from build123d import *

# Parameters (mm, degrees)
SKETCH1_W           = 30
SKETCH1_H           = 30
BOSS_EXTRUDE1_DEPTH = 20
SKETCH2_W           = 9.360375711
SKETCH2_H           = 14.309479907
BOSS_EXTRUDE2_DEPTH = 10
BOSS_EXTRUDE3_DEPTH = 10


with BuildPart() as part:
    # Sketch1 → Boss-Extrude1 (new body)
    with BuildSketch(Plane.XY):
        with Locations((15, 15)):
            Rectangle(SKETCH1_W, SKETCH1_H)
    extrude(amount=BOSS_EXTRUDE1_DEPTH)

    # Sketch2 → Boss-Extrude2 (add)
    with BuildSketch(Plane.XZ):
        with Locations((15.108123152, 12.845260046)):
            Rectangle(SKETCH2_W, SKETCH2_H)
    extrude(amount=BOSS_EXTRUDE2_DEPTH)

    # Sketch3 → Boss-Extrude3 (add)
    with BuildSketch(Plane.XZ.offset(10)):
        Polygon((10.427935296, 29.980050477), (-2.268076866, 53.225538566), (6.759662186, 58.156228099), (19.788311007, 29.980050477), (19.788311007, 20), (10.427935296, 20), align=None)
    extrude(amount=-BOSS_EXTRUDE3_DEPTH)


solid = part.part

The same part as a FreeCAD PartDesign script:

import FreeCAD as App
import Part
import Sketcher

V = App.Vector

doc = App.newDocument("Part")
params = doc.addObject("Spreadsheet::Sheet", "Params")
for row, (alias, value) in enumerate([
    ("sketch1_width", "30 mm"),
    ("pad1_length", "20 mm"),
    ("pad2_length", "10 mm"),
    ("pad3_length", "10 mm"),
], start=1):
    params.set(f"A{row}", alias)
    params.set(f"B{row}", "=" + value)
    params.setAlias(f"B{row}", alias)

body = doc.addObject("PartDesign::Body", "Body")

# Sketch on XY plane
sketch1 = body.newObject("Sketcher::SketchObject", "Sketch")
sketch1.AttachmentSupport = (doc.getObject("XY_Plane"), [""])
sketch1.MapMode = "FlatFace"
sketch1.addGeometry([
    Part.LineSegment(V(0, 30, 0), V(0, 0, 0)),
    Part.LineSegment(V(0, 0, 0), V(30, 0, 0)),
    Part.LineSegment(V(30, 0, 0), V(30, 30, 0)),
    Part.LineSegment(V(30, 30, 0), V(0, 30, 0)),
], False)
sketch1.addConstraint([
    Sketcher.Constraint("Coincident", 0, 2, 1, 1),
    Sketcher.Constraint("Coincident", 1, 2, 2, 1),
    Sketcher.Constraint("Coincident", 2, 2, 3, 1),
    Sketcher.Constraint("Coincident", 3, 2, 0, 1),
    Sketcher.Constraint("Vertical", 0),
    Sketcher.Constraint("Horizontal", 1),
    Sketcher.Constraint("Vertical", 2),
    Sketcher.Constraint("Horizontal", 3),
    Sketcher.Constraint("Coincident", 0, 2, -1, 1),
    Sketcher.Constraint("Equal", 3, 0),
    Sketcher.Constraint("DistanceX", 1, 1, 1, 2, 30.0),
])
sketch1.setExpression("Constraints[10]", "Params.sketch1_width")
pad1 = body.newObject("PartDesign::Pad", "Pad")
pad1.Profile = sketch1
pad1.setExpression("Length", "Params.pad1_length")

# Sketch on XZ plane
sketch2 = body.newObject("Sketcher::SketchObject", "Sketch001")
sketch2.AttachmentSupport = (doc.getObject("XZ_Plane"), [""])
sketch2.MapMode = "FlatFace"
sketch2.addGeometry([
    Part.LineSegment(V(10.427935, 20, 0), V(10.427935, 5.69052, 0)),
    Part.LineSegment(V(10.427935, 5.69052, 0), V(19.788311, 5.69052, 0)),
    Part.LineSegment(V(19.788311, 5.69052, 0), V(19.788311, 20, 0)),
    Part.LineSegment(V(19.788311, 20, 0), V(10.427935, 20, 0)),
], False)
sketch2.addConstraint([
    Sketcher.Constraint("Coincident", 0, 2, 1, 1),
    Sketcher.Constraint("Coincident", 1, 2, 2, 1),
    Sketcher.Constraint("Coincident", 2, 2, 3, 1),
    Sketcher.Constraint("Coincident", 3, 2, 0, 1),
    Sketcher.Constraint("Vertical", 0),
    Sketcher.Constraint("Horizontal", 1),
    Sketcher.Constraint("Vertical", 2),
    Sketcher.Constraint("Horizontal", 3),
    Sketcher.Constraint("DistanceY", -1, 1, 2, 2, 20.0),
    Sketcher.Constraint("DistanceY", 0, 2, 0, 1, 14.30948),
    Sketcher.Constraint("DistanceX", 1, 1, 1, 2, 9.360376),
    Sketcher.Constraint("DistanceX", -1, 1, 1, 2, 19.788311),
])
pad2 = body.newObject("PartDesign::Pad", "Pad001")
pad2.Profile = sketch2
pad2.setExpression("Length", "Params.pad2_length")

# Sketch on XZ plane
sketch3 = body.newObject("Sketcher::SketchObject", "Sketch002")
sketch3.AttachmentSupport = (doc.getObject("XZ_Plane"), [""])
sketch3.MapMode = "FlatFace"
sketch3.AttachmentOffset = App.Placement(V(0, 0, 10), App.Rotation())
sketch3.addGeometry([
    Part.LineSegment(V(-2.268077, 53.225539, 0), V(10.427935, 29.98005, 0)),  # 0
    Part.LineSegment(V(10.427935, 29.98005, 0), V(10.427935, 20, 0)),  # 1
    Part.LineSegment(V(10.427935, 20, 0), V(19.788311, 20, 0)),  # 2
    Part.LineSegment(V(19.788311, 20, 0), V(19.788311, 29.98005, 0)),  # 3
    Part.LineSegment(V(19.788311, 29.98005, 0), V(6.759662, 58.156228, 0)),  # 4
    Part.LineSegment(V(6.759662, 58.156228, 0), V(-2.268077, 53.225539, 0)),  # 5
], False)
sketch3.addConstraint([
    Sketcher.Constraint("Coincident", 0, 2, 1, 1),
    Sketcher.Constraint("Coincident", 1, 2, 2, 1),
    Sketcher.Constraint("Coincident", 2, 2, 3, 1),
    Sketcher.Constraint("Coincident", 3, 2, 4, 1),
    Sketcher.Constraint("Coincident", 4, 2, 5, 1),
    Sketcher.Constraint("Coincident", 5, 2, 0, 1),
    Sketcher.Constraint("Vertical", 1),
    Sketcher.Constraint("Horizontal", 2),
    Sketcher.Constraint("Vertical", 3),
    Sketcher.Constraint("Perpendicular", 0, 5),
    Sketcher.Constraint("Horizontal", 0, 2, 3, 2),
    Sketcher.Constraint("DistanceY", -1, 1, 1, 2, 20.0),
    Sketcher.Constraint("DistanceY", 1, 2, 1, 1, 9.98005),
    Sketcher.Constraint("DistanceX", 2, 1, 2, 2, 9.360376),
    Sketcher.Constraint("DistanceX", -1, 1, 2, 2, 19.788311),
    Sketcher.Constraint("DistanceY", -1, 1, 4, 2, 58.156228),
    Sketcher.Constraint("DistanceY", -1, 1, 5, 2, 53.225539),
    Sketcher.Constraint("DistanceX", 4, 2, 3, 2, 13.028649),
])
pad3 = body.newObject("PartDesign::Pad", "Pad002")
pad3.Profile = sketch3
pad3.setExpression("Length", "Params.pad3_length")
pad3.Reversed = True

doc.recompute()
